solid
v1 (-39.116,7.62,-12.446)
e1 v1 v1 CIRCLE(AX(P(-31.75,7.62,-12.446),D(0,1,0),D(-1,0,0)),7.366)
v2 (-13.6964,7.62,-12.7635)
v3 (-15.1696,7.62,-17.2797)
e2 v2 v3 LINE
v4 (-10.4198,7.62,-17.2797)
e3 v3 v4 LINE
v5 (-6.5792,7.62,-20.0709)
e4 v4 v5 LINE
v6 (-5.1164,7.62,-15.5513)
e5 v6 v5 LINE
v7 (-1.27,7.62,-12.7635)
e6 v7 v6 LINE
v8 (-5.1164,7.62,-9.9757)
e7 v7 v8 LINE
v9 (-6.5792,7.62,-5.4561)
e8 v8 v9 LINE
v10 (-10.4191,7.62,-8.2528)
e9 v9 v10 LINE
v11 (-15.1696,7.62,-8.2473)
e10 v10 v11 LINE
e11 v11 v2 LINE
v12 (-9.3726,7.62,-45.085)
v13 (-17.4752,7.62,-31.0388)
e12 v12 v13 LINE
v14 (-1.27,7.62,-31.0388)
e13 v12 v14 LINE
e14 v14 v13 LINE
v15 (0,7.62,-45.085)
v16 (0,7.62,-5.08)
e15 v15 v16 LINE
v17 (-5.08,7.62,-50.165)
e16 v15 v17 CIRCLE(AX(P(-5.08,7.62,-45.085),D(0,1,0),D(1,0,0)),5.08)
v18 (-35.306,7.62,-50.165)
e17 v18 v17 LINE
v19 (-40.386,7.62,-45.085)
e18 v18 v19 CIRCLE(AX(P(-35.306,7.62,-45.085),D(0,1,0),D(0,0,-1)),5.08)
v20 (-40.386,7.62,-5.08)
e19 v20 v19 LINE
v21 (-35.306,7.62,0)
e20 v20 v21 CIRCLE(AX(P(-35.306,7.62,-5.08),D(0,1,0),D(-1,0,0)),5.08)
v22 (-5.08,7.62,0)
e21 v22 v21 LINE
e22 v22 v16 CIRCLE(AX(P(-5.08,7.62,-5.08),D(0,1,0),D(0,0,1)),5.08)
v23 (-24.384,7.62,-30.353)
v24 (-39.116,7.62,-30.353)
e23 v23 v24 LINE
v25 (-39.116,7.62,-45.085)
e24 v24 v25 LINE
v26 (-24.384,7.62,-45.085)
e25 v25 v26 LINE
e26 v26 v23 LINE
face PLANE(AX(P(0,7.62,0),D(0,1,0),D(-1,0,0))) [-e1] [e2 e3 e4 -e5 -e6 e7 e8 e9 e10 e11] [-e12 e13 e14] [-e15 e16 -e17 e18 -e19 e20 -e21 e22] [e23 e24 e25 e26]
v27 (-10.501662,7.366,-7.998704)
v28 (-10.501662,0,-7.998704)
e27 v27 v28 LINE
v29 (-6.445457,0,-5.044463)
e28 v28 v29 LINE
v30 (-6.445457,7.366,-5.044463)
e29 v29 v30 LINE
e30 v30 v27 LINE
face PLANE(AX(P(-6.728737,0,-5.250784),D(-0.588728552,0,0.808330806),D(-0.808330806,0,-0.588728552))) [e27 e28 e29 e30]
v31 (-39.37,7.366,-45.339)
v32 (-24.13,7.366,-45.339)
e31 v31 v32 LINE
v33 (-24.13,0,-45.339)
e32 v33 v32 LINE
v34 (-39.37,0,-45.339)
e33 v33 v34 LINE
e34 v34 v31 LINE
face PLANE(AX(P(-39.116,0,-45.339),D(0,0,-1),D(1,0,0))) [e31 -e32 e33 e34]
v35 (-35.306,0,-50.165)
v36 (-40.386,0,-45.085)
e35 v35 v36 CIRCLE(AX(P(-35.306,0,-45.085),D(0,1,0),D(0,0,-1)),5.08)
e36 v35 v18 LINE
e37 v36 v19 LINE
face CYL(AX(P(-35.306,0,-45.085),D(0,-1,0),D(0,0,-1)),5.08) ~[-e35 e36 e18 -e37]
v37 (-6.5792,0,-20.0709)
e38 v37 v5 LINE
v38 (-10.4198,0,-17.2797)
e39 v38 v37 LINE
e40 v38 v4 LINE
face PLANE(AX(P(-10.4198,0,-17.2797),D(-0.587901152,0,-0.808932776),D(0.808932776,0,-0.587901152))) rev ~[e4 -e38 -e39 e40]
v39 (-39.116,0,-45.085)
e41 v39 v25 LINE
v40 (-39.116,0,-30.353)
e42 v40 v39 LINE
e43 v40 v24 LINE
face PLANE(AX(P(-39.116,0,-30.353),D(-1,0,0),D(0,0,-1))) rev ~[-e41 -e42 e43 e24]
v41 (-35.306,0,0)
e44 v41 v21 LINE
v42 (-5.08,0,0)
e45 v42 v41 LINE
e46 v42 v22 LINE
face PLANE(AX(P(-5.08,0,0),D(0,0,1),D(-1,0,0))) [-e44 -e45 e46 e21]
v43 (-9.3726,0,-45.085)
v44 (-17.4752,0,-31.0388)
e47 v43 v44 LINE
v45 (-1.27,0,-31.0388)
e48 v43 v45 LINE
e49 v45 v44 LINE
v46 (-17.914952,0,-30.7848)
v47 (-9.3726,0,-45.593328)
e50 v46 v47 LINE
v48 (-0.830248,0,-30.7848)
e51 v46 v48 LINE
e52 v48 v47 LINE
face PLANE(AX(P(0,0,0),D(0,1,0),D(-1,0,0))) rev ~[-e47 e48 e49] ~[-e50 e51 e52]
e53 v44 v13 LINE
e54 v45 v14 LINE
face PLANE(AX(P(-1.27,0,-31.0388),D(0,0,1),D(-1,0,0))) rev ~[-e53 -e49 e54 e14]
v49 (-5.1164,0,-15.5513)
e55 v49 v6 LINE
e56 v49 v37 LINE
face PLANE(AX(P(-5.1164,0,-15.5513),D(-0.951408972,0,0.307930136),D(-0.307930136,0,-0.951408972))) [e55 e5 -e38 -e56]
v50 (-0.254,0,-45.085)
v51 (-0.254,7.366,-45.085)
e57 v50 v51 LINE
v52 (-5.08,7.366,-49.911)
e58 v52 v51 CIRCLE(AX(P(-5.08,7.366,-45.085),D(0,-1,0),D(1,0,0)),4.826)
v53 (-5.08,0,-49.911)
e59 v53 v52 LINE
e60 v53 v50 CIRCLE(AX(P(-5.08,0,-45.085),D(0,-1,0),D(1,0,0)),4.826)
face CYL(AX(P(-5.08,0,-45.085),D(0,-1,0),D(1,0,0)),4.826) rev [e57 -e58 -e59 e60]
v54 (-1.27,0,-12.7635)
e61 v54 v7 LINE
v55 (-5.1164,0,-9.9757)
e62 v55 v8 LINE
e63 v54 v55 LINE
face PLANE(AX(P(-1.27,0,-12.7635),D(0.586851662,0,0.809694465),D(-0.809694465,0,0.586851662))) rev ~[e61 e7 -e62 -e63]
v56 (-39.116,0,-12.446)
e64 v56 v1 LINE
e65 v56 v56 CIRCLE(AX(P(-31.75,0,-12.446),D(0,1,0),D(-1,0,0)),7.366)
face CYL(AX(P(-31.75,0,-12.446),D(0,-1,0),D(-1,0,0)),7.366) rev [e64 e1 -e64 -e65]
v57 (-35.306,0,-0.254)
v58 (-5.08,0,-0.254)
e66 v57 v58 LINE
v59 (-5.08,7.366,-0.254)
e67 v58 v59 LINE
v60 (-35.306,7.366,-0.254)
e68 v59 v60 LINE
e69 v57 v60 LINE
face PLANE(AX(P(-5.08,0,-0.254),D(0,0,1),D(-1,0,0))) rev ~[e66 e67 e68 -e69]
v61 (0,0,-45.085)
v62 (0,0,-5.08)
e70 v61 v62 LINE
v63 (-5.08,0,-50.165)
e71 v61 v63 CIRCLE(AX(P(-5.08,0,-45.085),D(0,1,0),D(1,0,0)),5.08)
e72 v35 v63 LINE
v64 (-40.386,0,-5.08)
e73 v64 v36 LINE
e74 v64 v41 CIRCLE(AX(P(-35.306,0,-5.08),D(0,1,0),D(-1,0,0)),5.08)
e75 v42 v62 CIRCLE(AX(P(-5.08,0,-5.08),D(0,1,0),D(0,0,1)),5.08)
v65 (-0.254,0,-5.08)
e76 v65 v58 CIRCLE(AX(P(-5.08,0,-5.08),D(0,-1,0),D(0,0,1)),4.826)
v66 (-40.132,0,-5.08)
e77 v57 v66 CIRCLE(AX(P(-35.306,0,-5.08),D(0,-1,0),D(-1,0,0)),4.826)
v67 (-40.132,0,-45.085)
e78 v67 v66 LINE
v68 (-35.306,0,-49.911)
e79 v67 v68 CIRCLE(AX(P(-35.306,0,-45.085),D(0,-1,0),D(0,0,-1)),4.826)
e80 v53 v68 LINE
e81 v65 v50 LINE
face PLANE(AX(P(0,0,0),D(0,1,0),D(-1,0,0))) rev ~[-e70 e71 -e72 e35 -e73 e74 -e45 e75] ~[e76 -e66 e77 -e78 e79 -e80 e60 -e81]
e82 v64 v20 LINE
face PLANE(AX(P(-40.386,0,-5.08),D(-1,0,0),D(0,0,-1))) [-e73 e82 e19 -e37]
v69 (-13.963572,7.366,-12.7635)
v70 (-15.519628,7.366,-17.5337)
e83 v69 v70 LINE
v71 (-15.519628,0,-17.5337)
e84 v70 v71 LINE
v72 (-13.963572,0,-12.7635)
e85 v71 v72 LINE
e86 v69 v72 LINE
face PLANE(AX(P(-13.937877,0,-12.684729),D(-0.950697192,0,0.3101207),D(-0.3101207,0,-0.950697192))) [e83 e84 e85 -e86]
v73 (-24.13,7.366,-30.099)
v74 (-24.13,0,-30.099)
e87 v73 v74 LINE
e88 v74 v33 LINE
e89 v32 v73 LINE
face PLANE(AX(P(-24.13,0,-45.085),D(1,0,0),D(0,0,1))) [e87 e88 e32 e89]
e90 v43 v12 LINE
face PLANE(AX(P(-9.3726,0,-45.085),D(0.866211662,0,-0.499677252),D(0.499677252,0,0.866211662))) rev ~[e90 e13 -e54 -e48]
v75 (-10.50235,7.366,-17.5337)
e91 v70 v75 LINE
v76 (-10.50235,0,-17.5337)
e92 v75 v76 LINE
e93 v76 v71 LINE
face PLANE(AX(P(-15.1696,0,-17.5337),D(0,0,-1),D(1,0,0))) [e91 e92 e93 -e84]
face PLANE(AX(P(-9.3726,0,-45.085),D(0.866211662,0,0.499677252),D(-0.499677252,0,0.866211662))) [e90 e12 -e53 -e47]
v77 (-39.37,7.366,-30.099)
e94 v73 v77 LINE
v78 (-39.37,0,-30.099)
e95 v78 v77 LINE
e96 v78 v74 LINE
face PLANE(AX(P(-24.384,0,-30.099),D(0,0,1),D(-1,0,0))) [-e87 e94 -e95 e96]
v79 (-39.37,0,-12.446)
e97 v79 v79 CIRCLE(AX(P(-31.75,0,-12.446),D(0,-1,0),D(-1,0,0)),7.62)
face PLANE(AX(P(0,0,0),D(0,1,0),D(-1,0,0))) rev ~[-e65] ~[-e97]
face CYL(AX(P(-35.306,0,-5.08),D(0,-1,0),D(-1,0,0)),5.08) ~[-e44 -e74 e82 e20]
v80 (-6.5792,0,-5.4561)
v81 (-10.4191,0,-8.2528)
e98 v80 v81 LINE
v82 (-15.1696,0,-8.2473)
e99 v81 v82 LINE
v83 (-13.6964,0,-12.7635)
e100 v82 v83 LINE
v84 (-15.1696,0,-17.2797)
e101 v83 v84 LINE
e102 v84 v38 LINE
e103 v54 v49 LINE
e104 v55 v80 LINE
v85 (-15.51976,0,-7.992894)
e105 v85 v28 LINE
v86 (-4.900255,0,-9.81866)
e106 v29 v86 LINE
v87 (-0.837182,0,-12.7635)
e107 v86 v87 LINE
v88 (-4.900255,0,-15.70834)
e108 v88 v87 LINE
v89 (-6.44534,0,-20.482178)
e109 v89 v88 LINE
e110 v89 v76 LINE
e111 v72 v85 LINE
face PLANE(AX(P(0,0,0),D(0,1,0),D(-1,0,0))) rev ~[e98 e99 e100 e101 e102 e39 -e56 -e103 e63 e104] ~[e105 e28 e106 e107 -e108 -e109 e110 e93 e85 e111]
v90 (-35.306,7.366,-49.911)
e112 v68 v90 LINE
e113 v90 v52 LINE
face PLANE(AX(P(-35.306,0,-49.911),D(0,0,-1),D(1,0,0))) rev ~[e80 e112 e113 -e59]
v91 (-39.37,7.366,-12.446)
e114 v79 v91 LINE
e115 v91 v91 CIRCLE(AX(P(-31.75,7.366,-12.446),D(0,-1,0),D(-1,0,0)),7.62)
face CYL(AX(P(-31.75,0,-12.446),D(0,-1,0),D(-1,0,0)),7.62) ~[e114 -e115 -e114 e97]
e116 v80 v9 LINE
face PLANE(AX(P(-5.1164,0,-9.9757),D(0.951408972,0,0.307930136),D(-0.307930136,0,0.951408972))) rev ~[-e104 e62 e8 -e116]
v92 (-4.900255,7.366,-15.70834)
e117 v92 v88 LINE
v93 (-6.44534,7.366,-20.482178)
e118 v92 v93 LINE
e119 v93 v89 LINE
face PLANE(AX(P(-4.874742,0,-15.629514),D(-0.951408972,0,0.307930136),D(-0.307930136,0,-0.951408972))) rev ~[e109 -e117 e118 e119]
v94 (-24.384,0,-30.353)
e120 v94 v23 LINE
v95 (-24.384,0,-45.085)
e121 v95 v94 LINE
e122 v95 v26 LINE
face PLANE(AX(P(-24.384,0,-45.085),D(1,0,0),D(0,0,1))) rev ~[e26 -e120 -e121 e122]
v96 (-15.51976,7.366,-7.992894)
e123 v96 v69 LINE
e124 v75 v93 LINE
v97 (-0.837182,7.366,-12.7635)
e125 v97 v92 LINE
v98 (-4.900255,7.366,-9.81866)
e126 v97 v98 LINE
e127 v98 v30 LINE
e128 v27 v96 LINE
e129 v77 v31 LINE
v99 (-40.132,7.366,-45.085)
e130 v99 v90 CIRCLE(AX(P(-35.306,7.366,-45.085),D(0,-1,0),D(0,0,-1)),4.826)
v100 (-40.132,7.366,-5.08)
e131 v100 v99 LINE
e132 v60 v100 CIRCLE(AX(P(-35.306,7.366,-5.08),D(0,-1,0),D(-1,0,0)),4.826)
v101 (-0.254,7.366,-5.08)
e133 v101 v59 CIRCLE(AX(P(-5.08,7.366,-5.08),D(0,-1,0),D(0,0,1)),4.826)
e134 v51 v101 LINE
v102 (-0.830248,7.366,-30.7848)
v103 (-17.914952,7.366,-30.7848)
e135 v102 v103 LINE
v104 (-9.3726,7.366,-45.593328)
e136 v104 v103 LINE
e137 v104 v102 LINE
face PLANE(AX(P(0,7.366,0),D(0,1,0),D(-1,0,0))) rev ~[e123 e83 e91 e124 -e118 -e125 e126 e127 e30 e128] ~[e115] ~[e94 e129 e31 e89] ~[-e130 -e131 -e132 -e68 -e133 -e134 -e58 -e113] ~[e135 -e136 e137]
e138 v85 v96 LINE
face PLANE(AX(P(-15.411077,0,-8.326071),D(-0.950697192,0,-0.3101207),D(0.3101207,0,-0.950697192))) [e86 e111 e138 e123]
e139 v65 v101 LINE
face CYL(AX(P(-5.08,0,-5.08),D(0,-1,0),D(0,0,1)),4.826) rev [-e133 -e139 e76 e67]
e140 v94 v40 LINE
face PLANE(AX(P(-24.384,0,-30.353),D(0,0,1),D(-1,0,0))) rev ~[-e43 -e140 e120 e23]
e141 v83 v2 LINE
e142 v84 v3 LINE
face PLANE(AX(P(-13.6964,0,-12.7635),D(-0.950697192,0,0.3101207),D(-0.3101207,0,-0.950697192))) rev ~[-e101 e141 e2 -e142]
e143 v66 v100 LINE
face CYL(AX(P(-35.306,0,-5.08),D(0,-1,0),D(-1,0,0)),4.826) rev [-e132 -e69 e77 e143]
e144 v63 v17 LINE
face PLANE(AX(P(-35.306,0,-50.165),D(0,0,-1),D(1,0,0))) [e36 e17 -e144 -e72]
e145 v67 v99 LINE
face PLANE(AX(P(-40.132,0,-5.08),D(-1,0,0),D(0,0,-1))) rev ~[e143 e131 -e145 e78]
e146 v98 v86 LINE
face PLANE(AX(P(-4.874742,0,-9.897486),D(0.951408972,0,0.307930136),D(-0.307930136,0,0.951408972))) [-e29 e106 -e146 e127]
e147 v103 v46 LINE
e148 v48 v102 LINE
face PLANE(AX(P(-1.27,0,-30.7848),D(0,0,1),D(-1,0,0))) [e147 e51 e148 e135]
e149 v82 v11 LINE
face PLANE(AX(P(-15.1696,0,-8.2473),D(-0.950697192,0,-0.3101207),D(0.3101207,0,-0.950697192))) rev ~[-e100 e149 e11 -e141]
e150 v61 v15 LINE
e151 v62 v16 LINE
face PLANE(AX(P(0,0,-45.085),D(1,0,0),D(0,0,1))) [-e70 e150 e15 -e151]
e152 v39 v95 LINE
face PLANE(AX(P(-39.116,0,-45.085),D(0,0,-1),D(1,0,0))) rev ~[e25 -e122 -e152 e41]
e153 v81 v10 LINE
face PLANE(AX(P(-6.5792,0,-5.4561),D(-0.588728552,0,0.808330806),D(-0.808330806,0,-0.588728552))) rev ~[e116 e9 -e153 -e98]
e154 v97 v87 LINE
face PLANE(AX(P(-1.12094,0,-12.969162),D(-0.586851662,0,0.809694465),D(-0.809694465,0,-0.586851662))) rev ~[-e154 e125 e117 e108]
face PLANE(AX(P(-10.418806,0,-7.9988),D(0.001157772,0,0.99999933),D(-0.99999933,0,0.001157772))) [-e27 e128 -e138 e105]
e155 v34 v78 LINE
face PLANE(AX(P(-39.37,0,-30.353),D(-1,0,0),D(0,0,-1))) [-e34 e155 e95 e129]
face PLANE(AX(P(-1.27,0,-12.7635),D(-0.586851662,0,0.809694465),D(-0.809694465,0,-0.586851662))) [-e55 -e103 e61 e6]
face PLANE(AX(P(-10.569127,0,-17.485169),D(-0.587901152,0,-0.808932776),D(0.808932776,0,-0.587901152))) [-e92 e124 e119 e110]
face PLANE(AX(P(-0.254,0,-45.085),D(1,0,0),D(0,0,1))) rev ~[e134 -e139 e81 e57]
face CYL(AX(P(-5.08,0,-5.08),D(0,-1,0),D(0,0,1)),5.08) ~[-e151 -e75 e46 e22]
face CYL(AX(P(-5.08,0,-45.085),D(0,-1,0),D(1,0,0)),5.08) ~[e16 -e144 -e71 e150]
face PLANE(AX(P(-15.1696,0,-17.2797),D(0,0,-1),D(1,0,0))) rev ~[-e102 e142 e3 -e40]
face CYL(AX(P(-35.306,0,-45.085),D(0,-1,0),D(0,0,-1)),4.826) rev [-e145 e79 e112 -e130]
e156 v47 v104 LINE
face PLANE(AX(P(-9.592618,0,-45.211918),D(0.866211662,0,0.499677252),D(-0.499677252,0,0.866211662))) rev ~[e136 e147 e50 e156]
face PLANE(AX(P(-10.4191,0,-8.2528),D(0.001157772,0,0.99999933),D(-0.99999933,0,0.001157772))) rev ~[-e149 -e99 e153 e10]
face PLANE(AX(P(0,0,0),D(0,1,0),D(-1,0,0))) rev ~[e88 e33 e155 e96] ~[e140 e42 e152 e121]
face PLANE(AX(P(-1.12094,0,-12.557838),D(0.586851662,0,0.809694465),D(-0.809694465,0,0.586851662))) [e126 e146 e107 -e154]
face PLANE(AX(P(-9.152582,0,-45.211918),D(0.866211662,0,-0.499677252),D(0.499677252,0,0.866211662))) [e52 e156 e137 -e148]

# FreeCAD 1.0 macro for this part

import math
import FreeCAD as App
import Part
import Sketcher
Q = App.Units.Quantity


def faces_at(feature, points):
    """Names of the faces that lie closest to the given points."""
    faces = feature.Shape.Faces
    near = lambda p: min(range(len(faces)), key=lambda i: faces[i].distToShape(Part.Vertex(*p))[0])
    return sorted({f"Face{near(p) + 1}" for p in points})

doc = App.newDocument("Part")
body = doc.addObject("PartDesign::Body", "Body")

# Sketch on XZ plane
sketch1 = body.newObject("Sketcher::SketchObject", "Sketch")
sketch1.AttachmentSupport = (doc.getObject("XZ_Plane"), [""])
sketch1.MapMode = "FlatFace"
sketch1.addGeometry([
    Part.LineSegment(App.Vector(-35.3, 0, 0), App.Vector(-5.1, 0, 0)),  # 0
    Part.ArcOfCircle(Part.Circle(App.Vector(-5.1, -5.1, 0), App.Vector(0, 0, 1), 5.1), math.radians(0), math.radians(90)),  # 1
    Part.LineSegment(App.Vector(0, -5.1, 0), App.Vector(0, -45.1, 0)),  # 2
    Part.ArcOfCircle(Part.Circle(App.Vector(-5.1, -45.1, 0), App.Vector(0, 0, 1), 5.1), math.radians(-90), math.radians(0)),  # 3
    Part.LineSegment(App.Vector(-5.1, -50.2, 0), App.Vector(-35.3, -50.2, 0)),  # 4
    Part.ArcOfCircle(Part.Circle(App.Vector(-35.3, -45.1, 0), App.Vector(0, 0, 1), 5.1), math.radians(180), math.radians(270)),  # 5
    Part.LineSegment(App.Vector(-40.4, -45.1, 0), App.Vector(-40.4, -5.1, 0)),  # 6
    Part.ArcOfCircle(Part.Circle(App.Vector(-35.3, -5.1, 0), App.Vector(0, 0, 1), 5.1), math.radians(90), math.radians(180)),  # 7
    Part.LineSegment(App.Vector(-17.5, -31, 0), App.Vector(-9.4, -45.1, 0)),  # 8
    Part.LineSegment(App.Vector(-9.4, -45.1, 0), App.Vector(-1.3, -31, 0)),  # 9
    Part.LineSegment(App.Vector(-1.3, -31, 0), App.Vector(-17.5, -31, 0)),  # 10
    Part.LineSegment(App.Vector(-24.4, -45.1, 0), App.Vector(-24.4, -30.4, 0)),  # 11
    Part.LineSegment(App.Vector(-24.4, -30.4, 0), App.Vector(-39.1, -30.4, 0)),  # 12
    Part.LineSegment(App.Vector(-39.1, -30.4, 0), App.Vector(-39.1, -45.1, 0)),  # 13
    Part.LineSegment(App.Vector(-39.1, -45.1, 0), App.Vector(-24.4, -45.1, 0)),  # 14
    Part.LineSegment(App.Vector(-13.7, -12.8, 0), App.Vector(-15.2, -17.3, 0)),  # 15
    Part.LineSegment(App.Vector(-15.2, -17.3, 0), App.Vector(-10.4, -17.3, 0)),  # 16
    Part.LineSegment(App.Vector(-10.4, -17.3, 0), App.Vector(-6.6, -20.1, 0)),  # 17
    Part.LineSegment(App.Vector(-6.6, -20.1, 0), App.Vector(-5.1, -15.6, 0)),  # 18
    Part.LineSegment(App.Vector(-5.1, -15.6, 0), App.Vector(-1.3, -12.8, 0)),  # 19
    Part.LineSegment(App.Vector(-1.3, -12.8, 0), App.Vector(-5.1, -10, 0)),  # 20
    Part.LineSegment(App.Vector(-5.1, -10, 0), App.Vector(-6.6, -5.5, 0)),  # 21
    Part.LineSegment(App.Vector(-6.6, -5.5, 0), App.Vector(-10.4, -8.3, 0)),  # 22
    Part.LineSegment(App.Vector(-10.4, -8.3, 0), App.Vector(-15.2, -8.2, 0)),  # 23
    Part.LineSegment(App.Vector(-15.2, -8.2, 0), App.Vector(-13.7, -12.8, 0)),  # 24
    Part.Circle(App.Vector(-31.8, -12.4, 0), App.Vector(0, 0, 1), 7.4),  # 25
], False)
sketch1.addConstraint([
    Sketcher.Constraint("Tangent", 0, 2, 1, 2),
    Sketcher.Constraint("Tangent", 1, 1, 2, 1),
    Sketcher.Constraint("Tangent", 2, 2, 3, 2),
    Sketcher.Constraint("Tangent", 3, 1, 4, 1),
    Sketcher.Constraint("Tangent", 4, 2, 5, 2),
    Sketcher.Constraint("Tangent", 5, 1, 6, 1),
    Sketcher.Constraint("Tangent", 6, 2, 7, 2),
    Sketcher.Constraint("Tangent", 7, 1, 0, 1),
    Sketcher.Constraint("Coincident", 8, 2, 9, 1),
    Sketcher.Constraint("Coincident", 9, 2, 10, 1),
    Sketcher.Constraint("Coincident", 10, 2, 8, 1),
    Sketcher.Constraint("Coincident", 11, 2, 12, 1),
    Sketcher.Constraint("Coincident", 12, 2, 13, 1),
    Sketcher.Constraint("Coincident", 13, 2, 14, 1),
    Sketcher.Constraint("Coincident", 14, 2, 11, 1),
    Sketcher.Constraint("Coincident", 15, 2, 16, 1),
    Sketcher.Constraint("Coincident", 16, 2, 17, 1),
    Sketcher.Constraint("Coincident", 17, 2, 18, 1),
    Sketcher.Constraint("Coincident", 18, 2, 19, 1),
    Sketcher.Constraint("Coincident", 19, 2, 20, 1),
    Sketcher.Constraint("Coincident", 20, 2, 21, 1),
    Sketcher.Constraint("Coincident", 21, 2, 22, 1),
    Sketcher.Constraint("Coincident", 22, 2, 23, 1),
    Sketcher.Constraint("Coincident", 23, 2, 24, 1),
    Sketcher.Constraint("Coincident", 24, 2, 15, 1),
    Sketcher.Constraint("Horizontal", 0),
    Sketcher.Constraint("Vertical", 2),
    Sketcher.Constraint("Horizontal", 4),
    Sketcher.Constraint("Vertical", 6),
    Sketcher.Constraint("Horizontal", 10),
    Sketcher.Constraint("Vertical", 11),
    Sketcher.Constraint("Horizontal", 12),
    Sketcher.Constraint("Vertical", 13),
    Sketcher.Constraint("Horizontal", 14),
    Sketcher.Constraint("Horizontal", 16),
    Sketcher.Constraint("Equal", 1, 3),
    Sketcher.Constraint("Equal", 3, 5),
    Sketcher.Constraint("Equal", 5, 7),
    Sketcher.Constraint("PointOnObject", 0, 2, -1),
    Sketcher.Constraint("PointOnObject", 1, 1, -2),
    Sketcher.Constraint("Horizontal", 5, 1, 8, 2),
    Sketcher.Constraint("Horizontal", 8, 2, 13, 2),
    Sketcher.Constraint("Horizontal", 19, 2, 24, 2),
    Sketcher.Constraint("Vertical", 9, 2, 19, 2),
    Sketcher.Constraint("Vertical", 18, 2, 20, 2),
    Sketcher.Constraint("Vertical", 17, 2, 21, 2),
    Sketcher.Constraint("Vertical", 15, 2, 23, 2),
    Sketcher.Constraint("Equal", 14, 11),
    Sketcher.Constraint("Equal", 8, 9),
    Sketcher.Constraint("Equal", 15, 18),
    Sketcher.Constraint("Equal", 18, 19),
    Sketcher.Constraint("Equal", 19, 20),
    Sketcher.Constraint("Equal", 20, 21),
    Sketcher.Constraint("Equal", 21, 22),
    Sketcher.Constraint("Equal", 22, 23),
    Sketcher.Constraint("Equal", 23, 24),
    Sketcher.Constraint("Radius", 1, Q("0.2 in")),
    Sketcher.Constraint("Diameter", 25, Q("0.58 in")),
    Sketcher.Constraint("DistanceX", 12, 2, 12, 1, Q("0.58 in")),
    Sketcher.Constraint("DistanceX", 10, 2, 10, 1, Q("0.638 in")),
    Sketcher.Constraint("DistanceX", 16, 1, 16, 2, Q("0.187 in")),
    Sketcher.Constraint("DistanceY", 25, 3, -1, 1, Q("0.49 in")),
    Sketcher.Constraint("DistanceX", 5, 1, -1, 1, Q("1.59 in")),
    Sketcher.Constraint("DistanceX", 9, 2, -1, 1, Q("0.05 in")),
    Sketcher.Constraint("DistanceX", 5, 1, 25, 3, Q("0.34 in")),
    Sketcher.Constraint("DistanceX", 5, 1, 12, 2, Q("0.05 in")),
    Sketcher.Constraint("DistanceY", 3, 1, -1, 1, Q("1.975 in")),
    Sketcher.Constraint("DistanceY", 3, 1, 9, 2, Q("0.753 in")),
    Sketcher.Constraint("DistanceX", 15, 2, 24, 2, Q("0.058 in")),
    Sketcher.Constraint("DistanceY", 19, 2, -1, 1, Q("0.5025 in")),
    Sketcher.Constraint("DistanceY", 15, 2, -1, 1, Q("0.6803 in")),
    Sketcher.Constraint("DistanceY", 17, 2, -1, 1, Q("0.7902 in")),
    Sketcher.Constraint("DistanceX", 22, 2, -1, 1, Q("0.4102 in")),
    Sketcher.Constraint("DistanceX", 16, 2, 17, 2, Q("0.1512 in")),
])
pad1 = body.newObject("PartDesign::Pad", "Pad")
pad1.Profile = sketch1
pad1.Length = Q("0.3 in")
pad1.Reversed = True
doc.recompute()

thickness = body.newObject("PartDesign::Thickness", "Thickness")
thickness.Base = (pad1, faces_at(pad1, [(-17.077, 0, -40.403)]))
thickness.Value = Q("0.01 in")
thickness.Reversed = True
thickness.Join = "Intersection"

doc.recompute()
